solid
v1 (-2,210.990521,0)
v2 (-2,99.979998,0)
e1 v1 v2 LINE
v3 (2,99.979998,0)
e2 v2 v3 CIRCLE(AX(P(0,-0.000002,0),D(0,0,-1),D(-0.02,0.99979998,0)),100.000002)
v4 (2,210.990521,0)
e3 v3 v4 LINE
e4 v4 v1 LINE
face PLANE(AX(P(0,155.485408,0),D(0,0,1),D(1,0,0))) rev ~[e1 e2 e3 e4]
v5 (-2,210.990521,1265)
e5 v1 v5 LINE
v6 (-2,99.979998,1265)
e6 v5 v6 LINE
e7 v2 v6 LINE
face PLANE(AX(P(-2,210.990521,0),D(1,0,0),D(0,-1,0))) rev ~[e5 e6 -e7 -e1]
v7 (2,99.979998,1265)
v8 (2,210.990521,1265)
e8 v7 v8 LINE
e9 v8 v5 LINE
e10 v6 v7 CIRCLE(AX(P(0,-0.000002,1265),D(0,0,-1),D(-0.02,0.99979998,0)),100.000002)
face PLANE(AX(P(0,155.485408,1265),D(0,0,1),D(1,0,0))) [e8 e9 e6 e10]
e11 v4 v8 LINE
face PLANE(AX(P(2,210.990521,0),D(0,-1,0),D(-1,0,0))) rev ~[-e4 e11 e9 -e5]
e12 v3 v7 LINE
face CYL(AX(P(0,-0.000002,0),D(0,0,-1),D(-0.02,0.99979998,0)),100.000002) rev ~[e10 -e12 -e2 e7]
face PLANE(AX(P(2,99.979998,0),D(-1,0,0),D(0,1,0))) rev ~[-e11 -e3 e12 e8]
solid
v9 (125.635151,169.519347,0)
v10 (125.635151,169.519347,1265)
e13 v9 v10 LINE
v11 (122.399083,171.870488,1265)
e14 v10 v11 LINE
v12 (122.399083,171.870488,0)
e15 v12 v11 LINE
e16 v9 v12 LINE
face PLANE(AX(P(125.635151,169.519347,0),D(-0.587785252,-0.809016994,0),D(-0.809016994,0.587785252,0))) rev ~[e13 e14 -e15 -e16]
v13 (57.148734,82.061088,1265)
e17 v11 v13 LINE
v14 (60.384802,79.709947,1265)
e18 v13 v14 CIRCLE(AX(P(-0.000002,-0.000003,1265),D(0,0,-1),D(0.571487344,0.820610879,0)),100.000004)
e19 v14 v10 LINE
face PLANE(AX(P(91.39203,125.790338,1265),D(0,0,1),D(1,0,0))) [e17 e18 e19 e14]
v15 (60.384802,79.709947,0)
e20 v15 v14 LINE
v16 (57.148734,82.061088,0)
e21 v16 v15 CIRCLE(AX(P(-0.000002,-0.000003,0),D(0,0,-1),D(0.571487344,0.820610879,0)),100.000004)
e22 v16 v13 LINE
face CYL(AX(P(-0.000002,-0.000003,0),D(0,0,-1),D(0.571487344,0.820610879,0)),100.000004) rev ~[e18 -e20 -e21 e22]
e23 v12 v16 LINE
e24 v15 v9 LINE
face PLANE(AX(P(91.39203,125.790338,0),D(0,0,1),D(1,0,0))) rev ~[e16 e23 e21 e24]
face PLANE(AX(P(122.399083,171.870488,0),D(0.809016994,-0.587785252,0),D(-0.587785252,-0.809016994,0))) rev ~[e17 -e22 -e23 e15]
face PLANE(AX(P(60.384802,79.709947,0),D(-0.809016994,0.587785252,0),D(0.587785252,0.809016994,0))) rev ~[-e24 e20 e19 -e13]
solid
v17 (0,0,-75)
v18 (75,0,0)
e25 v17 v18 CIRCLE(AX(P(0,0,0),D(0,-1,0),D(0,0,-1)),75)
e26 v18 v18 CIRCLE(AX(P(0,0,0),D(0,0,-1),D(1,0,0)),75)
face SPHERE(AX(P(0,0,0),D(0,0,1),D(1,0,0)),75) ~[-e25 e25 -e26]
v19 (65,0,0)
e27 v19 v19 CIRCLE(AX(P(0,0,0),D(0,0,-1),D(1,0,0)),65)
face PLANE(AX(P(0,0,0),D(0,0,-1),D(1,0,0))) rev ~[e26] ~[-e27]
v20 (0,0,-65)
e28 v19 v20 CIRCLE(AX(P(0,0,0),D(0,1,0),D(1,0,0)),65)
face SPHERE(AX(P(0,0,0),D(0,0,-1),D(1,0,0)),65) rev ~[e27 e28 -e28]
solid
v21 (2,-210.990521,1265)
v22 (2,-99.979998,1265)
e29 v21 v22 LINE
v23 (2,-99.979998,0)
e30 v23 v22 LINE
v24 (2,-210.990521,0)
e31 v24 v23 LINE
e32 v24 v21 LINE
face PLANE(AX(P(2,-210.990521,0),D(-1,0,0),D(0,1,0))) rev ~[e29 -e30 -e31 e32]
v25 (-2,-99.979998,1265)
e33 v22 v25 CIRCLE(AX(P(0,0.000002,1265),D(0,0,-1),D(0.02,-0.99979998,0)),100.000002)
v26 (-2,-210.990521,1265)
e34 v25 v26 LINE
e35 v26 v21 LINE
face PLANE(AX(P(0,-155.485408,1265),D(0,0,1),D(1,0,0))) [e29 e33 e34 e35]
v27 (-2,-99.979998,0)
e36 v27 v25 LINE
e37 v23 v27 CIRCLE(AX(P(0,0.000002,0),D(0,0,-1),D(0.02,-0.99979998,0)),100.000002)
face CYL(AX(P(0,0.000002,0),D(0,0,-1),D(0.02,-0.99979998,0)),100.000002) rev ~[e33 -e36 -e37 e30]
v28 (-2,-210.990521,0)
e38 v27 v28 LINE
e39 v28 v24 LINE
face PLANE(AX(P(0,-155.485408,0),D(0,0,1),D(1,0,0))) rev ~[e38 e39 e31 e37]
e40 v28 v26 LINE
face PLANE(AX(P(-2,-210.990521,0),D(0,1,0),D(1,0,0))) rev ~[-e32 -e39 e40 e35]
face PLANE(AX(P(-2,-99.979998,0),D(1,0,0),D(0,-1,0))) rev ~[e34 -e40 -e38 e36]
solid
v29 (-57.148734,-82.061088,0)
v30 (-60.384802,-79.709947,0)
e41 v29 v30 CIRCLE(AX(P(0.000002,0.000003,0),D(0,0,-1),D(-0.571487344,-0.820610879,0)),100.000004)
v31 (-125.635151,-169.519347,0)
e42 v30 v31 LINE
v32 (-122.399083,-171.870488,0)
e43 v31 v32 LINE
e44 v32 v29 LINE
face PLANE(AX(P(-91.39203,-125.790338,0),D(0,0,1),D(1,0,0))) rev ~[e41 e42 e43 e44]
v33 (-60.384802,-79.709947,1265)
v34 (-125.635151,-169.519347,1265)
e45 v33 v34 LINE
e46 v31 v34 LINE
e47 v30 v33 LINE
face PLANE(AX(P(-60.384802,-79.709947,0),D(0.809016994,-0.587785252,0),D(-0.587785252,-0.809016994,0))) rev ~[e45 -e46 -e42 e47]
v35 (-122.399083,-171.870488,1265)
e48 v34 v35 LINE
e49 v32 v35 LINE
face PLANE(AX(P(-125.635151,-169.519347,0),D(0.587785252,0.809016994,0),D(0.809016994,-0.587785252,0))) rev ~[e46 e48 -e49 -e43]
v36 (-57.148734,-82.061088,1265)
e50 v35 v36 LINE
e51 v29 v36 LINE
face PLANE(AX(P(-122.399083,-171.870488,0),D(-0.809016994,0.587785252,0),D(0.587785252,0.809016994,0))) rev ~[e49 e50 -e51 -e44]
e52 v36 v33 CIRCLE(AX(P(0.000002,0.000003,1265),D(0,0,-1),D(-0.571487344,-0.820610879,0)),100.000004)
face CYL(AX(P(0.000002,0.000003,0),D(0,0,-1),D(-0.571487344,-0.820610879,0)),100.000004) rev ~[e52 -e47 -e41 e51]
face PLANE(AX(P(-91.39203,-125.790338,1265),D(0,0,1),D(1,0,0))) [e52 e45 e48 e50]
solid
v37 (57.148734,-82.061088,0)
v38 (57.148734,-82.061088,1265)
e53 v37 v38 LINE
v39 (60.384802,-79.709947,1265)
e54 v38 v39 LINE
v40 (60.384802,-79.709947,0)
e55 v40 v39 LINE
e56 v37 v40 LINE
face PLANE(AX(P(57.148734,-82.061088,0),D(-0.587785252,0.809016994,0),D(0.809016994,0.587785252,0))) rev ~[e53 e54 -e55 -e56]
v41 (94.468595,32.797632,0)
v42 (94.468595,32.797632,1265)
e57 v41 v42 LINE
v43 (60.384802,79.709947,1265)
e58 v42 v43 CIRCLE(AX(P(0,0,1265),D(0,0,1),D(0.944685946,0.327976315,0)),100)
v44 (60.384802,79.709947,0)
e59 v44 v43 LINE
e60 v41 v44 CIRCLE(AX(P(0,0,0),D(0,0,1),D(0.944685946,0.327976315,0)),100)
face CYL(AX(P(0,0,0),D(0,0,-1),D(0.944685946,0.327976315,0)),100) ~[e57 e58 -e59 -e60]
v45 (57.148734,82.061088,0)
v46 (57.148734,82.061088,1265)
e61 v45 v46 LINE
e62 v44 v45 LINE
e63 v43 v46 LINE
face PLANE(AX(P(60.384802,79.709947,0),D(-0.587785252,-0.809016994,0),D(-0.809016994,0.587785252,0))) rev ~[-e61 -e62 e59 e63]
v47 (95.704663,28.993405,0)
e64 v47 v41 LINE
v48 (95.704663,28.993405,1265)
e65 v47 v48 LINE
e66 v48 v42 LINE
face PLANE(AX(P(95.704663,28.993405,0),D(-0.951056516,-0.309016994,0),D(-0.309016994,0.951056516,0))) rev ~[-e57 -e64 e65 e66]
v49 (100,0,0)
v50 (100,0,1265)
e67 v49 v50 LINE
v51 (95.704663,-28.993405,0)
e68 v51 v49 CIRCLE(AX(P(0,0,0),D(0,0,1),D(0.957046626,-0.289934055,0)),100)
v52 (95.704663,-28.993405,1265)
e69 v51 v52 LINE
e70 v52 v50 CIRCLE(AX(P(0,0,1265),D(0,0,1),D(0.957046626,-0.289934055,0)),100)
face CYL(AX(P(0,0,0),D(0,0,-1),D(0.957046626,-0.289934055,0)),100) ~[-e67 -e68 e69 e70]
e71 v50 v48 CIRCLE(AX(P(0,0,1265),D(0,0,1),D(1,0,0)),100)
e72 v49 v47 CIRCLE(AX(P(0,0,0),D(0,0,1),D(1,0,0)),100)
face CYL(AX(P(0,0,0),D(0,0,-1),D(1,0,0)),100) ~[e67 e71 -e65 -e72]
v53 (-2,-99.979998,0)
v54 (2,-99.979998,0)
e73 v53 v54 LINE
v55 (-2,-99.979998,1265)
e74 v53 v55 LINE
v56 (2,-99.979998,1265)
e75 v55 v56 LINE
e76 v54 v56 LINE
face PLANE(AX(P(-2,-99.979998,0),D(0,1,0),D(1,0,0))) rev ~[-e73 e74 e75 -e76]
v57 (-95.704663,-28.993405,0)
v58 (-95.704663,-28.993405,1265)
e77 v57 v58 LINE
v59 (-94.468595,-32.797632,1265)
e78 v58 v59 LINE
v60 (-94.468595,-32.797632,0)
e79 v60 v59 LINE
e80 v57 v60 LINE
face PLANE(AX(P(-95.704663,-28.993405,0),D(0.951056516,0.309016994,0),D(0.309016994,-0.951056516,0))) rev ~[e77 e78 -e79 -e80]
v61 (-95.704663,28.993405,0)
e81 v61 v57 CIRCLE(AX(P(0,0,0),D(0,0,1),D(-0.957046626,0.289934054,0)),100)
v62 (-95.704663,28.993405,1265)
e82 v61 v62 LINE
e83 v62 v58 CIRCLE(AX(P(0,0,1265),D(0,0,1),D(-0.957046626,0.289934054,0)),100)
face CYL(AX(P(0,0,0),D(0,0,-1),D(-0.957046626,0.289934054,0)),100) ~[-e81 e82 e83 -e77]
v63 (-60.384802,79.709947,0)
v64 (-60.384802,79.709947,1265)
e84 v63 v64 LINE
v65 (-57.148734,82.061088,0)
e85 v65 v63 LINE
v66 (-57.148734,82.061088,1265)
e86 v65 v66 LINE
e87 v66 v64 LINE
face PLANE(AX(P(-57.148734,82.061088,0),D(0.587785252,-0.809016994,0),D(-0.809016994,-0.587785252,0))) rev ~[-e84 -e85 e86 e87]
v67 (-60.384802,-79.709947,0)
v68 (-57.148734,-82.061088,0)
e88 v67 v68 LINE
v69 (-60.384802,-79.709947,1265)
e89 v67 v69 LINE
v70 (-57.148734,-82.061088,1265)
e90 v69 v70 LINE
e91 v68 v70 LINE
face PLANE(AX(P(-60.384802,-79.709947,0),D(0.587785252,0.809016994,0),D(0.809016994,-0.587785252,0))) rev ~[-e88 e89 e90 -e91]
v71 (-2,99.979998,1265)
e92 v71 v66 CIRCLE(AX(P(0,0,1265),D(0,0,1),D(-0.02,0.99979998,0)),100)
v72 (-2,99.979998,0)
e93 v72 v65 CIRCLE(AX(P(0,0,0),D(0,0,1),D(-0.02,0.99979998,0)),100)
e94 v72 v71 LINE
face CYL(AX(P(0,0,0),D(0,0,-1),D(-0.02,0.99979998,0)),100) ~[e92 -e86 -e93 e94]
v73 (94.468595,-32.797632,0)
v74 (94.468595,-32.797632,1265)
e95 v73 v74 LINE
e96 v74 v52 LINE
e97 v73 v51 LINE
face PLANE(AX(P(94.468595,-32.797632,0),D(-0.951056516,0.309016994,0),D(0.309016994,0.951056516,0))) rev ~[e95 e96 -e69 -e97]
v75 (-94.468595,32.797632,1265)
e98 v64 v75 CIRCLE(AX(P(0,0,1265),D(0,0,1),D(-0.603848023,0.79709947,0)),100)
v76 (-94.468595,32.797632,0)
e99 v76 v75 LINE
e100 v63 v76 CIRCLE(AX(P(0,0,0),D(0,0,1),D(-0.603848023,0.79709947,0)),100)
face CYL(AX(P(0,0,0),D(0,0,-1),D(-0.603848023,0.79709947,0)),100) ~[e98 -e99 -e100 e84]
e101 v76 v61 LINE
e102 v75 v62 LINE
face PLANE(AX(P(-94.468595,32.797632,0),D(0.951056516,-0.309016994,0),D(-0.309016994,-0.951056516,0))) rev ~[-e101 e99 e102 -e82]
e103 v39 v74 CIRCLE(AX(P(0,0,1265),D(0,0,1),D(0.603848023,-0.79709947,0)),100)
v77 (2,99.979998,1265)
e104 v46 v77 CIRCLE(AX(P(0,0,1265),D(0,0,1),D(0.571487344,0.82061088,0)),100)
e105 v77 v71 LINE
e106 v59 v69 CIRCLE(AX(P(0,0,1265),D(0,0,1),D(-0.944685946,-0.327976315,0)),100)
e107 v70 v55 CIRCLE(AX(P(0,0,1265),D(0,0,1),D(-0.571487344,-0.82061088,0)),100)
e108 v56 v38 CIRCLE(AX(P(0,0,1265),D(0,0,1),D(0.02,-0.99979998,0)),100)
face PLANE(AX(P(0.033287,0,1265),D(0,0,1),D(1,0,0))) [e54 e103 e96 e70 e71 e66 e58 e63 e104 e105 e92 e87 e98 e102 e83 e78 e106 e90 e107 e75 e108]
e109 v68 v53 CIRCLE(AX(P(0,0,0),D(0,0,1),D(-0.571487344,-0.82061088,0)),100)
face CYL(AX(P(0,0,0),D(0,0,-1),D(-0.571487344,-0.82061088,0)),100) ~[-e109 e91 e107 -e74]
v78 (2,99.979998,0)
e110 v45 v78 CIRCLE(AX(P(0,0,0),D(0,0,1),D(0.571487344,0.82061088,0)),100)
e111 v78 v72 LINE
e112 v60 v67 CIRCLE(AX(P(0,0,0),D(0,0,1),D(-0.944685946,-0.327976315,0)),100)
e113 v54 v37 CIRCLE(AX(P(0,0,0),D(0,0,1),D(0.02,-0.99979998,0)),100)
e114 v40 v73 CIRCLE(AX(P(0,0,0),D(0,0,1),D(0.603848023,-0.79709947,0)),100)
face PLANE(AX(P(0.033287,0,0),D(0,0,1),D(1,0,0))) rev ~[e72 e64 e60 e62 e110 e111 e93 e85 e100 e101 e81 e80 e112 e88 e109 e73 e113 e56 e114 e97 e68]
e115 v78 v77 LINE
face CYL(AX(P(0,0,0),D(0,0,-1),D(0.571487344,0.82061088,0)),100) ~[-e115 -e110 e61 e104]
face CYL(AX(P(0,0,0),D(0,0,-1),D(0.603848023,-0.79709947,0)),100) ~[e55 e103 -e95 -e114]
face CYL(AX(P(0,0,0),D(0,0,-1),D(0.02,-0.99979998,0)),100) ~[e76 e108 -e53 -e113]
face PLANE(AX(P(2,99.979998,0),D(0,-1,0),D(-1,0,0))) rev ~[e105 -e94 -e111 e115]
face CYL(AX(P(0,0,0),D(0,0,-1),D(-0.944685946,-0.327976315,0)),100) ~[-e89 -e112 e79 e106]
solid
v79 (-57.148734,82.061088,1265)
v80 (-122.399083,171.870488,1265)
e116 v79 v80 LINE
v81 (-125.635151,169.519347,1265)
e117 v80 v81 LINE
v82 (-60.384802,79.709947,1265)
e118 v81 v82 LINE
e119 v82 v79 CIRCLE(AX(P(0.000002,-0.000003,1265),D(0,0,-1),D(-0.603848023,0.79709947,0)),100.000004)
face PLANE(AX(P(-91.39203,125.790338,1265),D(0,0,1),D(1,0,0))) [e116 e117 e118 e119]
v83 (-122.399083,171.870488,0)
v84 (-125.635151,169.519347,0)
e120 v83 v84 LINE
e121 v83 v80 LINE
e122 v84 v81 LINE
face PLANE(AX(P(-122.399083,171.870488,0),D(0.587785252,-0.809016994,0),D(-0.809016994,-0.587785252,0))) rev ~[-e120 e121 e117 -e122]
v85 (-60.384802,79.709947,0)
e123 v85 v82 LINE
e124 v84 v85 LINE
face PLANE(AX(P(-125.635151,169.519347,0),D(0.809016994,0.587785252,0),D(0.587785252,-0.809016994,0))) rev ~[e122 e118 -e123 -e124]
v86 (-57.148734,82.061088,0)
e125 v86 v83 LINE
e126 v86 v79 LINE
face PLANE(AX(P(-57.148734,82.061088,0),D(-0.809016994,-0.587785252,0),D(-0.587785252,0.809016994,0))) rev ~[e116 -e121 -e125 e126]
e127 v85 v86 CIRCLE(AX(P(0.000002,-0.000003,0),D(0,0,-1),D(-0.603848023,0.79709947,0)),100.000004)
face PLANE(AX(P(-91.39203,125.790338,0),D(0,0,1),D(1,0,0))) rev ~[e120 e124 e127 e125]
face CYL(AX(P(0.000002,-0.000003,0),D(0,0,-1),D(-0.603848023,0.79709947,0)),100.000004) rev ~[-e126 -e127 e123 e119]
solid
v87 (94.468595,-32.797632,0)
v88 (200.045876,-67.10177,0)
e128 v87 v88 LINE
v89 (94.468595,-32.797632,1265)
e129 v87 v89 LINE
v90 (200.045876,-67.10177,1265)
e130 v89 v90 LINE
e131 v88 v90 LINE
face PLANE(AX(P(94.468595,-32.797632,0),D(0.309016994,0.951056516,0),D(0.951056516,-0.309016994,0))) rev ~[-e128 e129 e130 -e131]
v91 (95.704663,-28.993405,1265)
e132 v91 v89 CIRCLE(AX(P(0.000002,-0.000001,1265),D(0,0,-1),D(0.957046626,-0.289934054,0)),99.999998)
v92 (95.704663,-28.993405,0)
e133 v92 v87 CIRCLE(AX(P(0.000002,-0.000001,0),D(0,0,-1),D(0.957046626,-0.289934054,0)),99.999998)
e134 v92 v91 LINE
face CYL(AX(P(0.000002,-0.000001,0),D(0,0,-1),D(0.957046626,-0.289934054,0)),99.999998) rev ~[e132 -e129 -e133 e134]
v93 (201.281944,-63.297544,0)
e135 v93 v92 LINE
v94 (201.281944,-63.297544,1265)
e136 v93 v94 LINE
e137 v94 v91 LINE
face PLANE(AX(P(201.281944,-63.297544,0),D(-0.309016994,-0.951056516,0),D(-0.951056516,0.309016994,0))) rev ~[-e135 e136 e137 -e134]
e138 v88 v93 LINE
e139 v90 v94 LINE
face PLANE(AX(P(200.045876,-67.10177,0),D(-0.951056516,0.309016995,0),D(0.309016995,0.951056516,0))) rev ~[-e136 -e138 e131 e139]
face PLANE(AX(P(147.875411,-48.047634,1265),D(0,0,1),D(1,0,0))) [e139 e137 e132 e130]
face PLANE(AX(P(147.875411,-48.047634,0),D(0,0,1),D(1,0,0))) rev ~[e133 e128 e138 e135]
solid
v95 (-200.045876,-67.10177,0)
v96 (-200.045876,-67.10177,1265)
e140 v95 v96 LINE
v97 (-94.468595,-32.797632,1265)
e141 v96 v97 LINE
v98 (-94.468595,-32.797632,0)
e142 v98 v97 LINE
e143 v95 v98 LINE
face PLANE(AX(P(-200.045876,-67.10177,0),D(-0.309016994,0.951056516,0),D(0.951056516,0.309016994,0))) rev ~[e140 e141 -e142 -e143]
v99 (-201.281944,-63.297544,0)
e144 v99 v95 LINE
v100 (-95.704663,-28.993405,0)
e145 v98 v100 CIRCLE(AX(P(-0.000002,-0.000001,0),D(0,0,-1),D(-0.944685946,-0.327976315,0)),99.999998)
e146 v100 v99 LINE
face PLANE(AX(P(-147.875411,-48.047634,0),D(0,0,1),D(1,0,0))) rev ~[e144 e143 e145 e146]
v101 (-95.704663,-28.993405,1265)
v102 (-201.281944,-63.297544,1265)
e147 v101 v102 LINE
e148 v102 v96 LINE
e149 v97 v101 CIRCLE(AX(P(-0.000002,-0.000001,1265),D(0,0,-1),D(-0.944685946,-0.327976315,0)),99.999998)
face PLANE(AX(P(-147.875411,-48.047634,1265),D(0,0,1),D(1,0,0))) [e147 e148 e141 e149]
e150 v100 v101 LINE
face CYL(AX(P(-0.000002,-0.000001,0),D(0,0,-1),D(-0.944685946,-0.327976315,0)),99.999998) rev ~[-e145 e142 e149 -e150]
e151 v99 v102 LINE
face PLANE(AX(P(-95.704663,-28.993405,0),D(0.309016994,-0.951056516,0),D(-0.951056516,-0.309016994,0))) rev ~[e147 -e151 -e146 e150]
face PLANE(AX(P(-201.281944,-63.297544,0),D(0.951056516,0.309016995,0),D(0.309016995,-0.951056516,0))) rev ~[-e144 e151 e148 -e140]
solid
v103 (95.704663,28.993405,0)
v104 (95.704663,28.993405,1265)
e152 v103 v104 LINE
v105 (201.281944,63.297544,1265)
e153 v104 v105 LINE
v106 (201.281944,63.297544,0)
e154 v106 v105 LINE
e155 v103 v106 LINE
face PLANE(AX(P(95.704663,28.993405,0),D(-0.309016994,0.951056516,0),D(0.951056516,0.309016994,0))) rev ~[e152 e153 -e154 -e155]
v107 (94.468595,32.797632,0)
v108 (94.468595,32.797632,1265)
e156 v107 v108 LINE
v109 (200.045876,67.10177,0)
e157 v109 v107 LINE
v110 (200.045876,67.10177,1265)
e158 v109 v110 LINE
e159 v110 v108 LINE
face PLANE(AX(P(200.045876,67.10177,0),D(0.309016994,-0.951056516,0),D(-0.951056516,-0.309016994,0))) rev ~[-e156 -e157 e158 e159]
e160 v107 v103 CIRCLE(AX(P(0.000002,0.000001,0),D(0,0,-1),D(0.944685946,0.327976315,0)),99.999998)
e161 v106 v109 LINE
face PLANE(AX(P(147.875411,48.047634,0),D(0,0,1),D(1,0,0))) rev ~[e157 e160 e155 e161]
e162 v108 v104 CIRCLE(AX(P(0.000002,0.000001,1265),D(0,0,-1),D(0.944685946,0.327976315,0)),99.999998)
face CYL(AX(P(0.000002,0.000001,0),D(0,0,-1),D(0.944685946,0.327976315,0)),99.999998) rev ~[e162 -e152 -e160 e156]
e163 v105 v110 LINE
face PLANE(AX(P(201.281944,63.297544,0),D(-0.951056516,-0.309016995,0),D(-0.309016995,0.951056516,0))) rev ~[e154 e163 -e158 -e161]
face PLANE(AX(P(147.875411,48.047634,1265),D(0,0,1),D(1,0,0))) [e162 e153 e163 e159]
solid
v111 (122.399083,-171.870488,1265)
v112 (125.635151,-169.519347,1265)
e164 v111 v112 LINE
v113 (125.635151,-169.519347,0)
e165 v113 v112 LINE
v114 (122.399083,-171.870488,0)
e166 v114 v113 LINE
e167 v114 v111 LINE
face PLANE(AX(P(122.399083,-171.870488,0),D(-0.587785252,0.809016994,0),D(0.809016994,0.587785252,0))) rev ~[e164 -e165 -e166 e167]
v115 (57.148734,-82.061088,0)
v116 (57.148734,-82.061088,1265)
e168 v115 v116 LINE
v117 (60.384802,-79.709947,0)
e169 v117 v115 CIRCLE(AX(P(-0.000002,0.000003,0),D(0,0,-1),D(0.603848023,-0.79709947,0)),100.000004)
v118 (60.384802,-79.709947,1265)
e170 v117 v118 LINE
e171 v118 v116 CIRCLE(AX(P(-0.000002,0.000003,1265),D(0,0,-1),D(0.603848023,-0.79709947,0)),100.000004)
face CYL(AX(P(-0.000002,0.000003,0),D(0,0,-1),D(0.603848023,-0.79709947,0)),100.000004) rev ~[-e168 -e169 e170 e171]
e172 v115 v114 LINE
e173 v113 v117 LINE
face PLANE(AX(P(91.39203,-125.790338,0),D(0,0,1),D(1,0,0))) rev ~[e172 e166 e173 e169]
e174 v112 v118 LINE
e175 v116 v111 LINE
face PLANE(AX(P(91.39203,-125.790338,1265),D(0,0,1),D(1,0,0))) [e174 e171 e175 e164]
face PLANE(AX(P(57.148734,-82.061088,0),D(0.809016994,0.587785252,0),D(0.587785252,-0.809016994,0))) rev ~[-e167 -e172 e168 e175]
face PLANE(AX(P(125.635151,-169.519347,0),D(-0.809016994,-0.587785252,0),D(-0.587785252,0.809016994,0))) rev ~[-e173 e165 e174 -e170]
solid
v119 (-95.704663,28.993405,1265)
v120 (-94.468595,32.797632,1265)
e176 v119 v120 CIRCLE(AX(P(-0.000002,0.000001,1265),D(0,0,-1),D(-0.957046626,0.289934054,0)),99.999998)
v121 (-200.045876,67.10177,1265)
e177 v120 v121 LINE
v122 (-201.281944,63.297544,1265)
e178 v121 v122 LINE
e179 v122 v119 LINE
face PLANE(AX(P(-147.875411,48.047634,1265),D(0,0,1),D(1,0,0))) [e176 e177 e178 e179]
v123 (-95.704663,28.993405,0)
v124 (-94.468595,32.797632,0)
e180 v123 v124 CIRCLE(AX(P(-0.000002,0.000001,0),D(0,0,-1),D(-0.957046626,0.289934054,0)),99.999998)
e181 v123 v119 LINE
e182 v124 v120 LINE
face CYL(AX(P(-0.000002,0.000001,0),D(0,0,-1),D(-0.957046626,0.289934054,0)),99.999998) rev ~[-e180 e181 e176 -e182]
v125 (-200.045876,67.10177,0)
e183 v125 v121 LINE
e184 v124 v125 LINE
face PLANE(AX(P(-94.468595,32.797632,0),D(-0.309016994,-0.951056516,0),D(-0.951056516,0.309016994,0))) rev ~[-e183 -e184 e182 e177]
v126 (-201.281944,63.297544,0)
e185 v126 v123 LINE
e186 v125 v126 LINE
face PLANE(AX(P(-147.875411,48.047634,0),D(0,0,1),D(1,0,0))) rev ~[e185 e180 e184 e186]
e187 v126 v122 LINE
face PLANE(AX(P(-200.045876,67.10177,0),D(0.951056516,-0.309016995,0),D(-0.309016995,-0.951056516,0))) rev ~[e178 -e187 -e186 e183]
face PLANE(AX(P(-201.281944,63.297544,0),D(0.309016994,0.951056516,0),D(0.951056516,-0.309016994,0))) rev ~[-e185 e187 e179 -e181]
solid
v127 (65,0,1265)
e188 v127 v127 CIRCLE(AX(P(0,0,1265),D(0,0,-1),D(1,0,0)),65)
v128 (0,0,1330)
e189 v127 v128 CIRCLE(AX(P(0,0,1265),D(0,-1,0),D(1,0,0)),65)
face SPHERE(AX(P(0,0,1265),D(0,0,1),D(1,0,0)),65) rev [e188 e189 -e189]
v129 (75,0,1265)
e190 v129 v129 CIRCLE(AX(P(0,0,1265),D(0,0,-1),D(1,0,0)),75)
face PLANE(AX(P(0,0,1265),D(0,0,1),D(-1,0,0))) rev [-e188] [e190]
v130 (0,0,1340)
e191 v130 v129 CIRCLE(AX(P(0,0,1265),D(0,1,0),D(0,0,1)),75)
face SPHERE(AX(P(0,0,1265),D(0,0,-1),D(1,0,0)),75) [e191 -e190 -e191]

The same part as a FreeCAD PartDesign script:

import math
import FreeCAD as App
import Part
import Sketcher

V = App.Vector
Q = App.Units.Quantity

doc = App.newDocument("Part")
body = doc.addObject("PartDesign::Body", "Body")

sketch1 = body.newObject("Sketcher::SketchObject", "Sketch")
sketch1.AttachmentSupport = (doc.getObject("XY_Plane"), [""])
sketch1.MapMode = "FlatFace"
sketch1.addGeometry(Part.ArcOfCircle(Part.Circle(V(0, 0, 0), V(0, 0, 1), 100), math.radians(88.85), math.radians(91.15)), False)
sketch1.addGeometry(Part.LineSegment(V(2, 100, 0), V(2, 211, 0)), False)
sketch1.addGeometry(Part.LineSegment(V(2, 211, 0), V(-2, 211, 0)), False)
sketch1.addGeometry(Part.LineSegment(V(-2, 211, 0), V(-2, 100, 0)), False)
sketch1.addConstraint(Sketcher.Constraint("Coincident", 0, 1, 1, 1))
sketch1.addConstraint(Sketcher.Constraint("Coincident", 1, 2, 2, 1))
sketch1.addConstraint(Sketcher.Constraint("Coincident", 2, 2, 3, 1))
sketch1.addConstraint(Sketcher.Constraint("Coincident", 3, 2, 0, 2))
sketch1.addConstraint(Sketcher.Constraint("Vertical", 1))
sketch1.addConstraint(Sketcher.Constraint("Horizontal", 2))
sketch1.addConstraint(Sketcher.Constraint("Vertical", 3))
sketch1.addConstraint(Sketcher.Constraint("Coincident", 0, 3, -1, 1))
sketch1.addConstraint(Sketcher.Constraint("Horizontal", 0, 1, 3, 2))
sketch1.addConstraint(Sketcher.Constraint("Radius", 0, Q("100.000002 mm")))
sketch1.addConstraint(Sketcher.Constraint("DistanceX", 2, 2, 2, 1, Q("4 mm")))
sketch1.addConstraint(Sketcher.Constraint("DistanceY", 1, 1, 1, 2, Q("111.010523 mm")))
pad1 = body.newObject("PartDesign::Pad", "Pad")
pad1.Profile = sketch1
pad1.Length = 1265
body2 = doc.addObject("PartDesign::Body", "Body001")

sketch2 = body2.newObject("Sketcher::SketchObject", "Sketch001")
sketch2.AttachmentSupport = (doc.getObject("XY_Plane001"), [""])
sketch2.MapMode = "FlatFace"
sketch2.addGeometry(Part.ArcOfCircle(Part.Circle(V(0, 0, 0), V(0, 0, 1), 100), math.radians(124.85), math.radians(127.15)), False)
sketch2.addGeometry(Part.LineSegment(V(-57.1, 82.1, 0), V(-122.4, 171.9, 0)), False)
sketch2.addGeometry(Part.LineSegment(V(-122.4, 171.9, 0), V(-125.6, 169.5, 0)), False)
sketch2.addGeometry(Part.LineSegment(V(-125.6, 169.5, 0), V(-60.4, 79.7, 0)), False)
sketch2.addConstraint(Sketcher.Constraint("Coincident", 0, 1, 1, 1))
sketch2.addConstraint(Sketcher.Constraint("Coincident", 1, 2, 2, 1))
sketch2.addConstraint(Sketcher.Constraint("Coincident", 2, 2, 3, 1))
sketch2.addConstraint(Sketcher.Constraint("Coincident", 3, 2, 0, 2))
sketch2.addConstraint(Sketcher.Constraint("Coincident", 0, 3, -1, 1))
sketch2.addConstraint(Sketcher.Constraint("Perpendicular", 1, 2))
sketch2.addConstraint(Sketcher.Constraint("Perpendicular", 2, 3))
sketch2.addConstraint(Sketcher.Constraint("Equal", 1, 3))
sketch2.addConstraint(Sketcher.Constraint("Angle", 1, Q("126 deg")))
sketch2.addConstraint(Sketcher.Constraint("Distance", 2, Q("4 mm")))
sketch2.addConstraint(Sketcher.Constraint("Radius", 0, Q("100.000004 mm")))
sketch2.addConstraint(Sketcher.Constraint("DistanceY", 0, 1, 1, 2, Q("89.8094 mm")))
pad2 = body2.newObject("PartDesign::Pad", "Pad001")
pad2.Profile = sketch2
pad2.Length = 1265
body3 = doc.addObject("PartDesign::Body", "Body002")

sketch3 = body3.newObject("Sketcher::SketchObject", "Sketch002")
sketch3.AttachmentSupport = (doc.getObject("XY_Plane002"), [""])
sketch3.MapMode = "FlatFace"
sketch3.addGeometry(Part.ArcOfCircle(Part.Circle(V(0, 0, 0), V(0, 0, 1), 100), math.radians(160.85), math.radians(163.15)), False)
sketch3.addGeometry(Part.LineSegment(V(-94.5, 32.8, 0), V(-200, 67.1, 0)), False)
sketch3.addGeometry(Part.LineSegment(V(-200, 67.1, 0), V(-201.3, 63.3, 0)), False)
sketch3.addGeometry(Part.LineSegment(V(-201.3, 63.3, 0), V(-95.7, 29, 0)), False)
sketch3.addConstraint(Sketcher.Constraint("Coincident", 0, 1, 1, 1))
sketch3.addConstraint(Sketcher.Constraint("Coincident", 1, 2, 2, 1))
sketch3.addConstraint(Sketcher.Constraint("Coincident", 2, 2, 3, 1))
sketch3.addConstraint(Sketcher.Constraint("Coincident", 3, 2, 0, 2))
sketch3.addConstraint(Sketcher.Constraint("Coincident", 0, 3, -1, 1))
sketch3.addConstraint(Sketcher.Constraint("Perpendicular", 1, 2))
sketch3.addConstraint(Sketcher.Constraint("Perpendicular", 2, 3))
sketch3.addConstraint(Sketcher.Constraint("Equal", 1, 3))
sketch3.addConstraint(Sketcher.Constraint("Angle", 1, Q("162 deg")))
sketch3.addConstraint(Sketcher.Constraint("Distance", 2, Q("4 mm")))
sketch3.addConstraint(Sketcher.Constraint("Radius", 0, Q("99.999998 mm")))
sketch3.addConstraint(Sketcher.Constraint("DistanceY", -1, 1, 1, 2, Q("67.10177 mm")))
pad3 = body3.newObject("PartDesign::Pad", "Pad002")
pad3.Profile = sketch3
pad3.Length = 1265
body4 = doc.addObject("PartDesign::Body", "Body003")

sketch4 = body4.newObject("Sketcher::SketchObject", "Sketch003")
sketch4.AttachmentSupport = (doc.getObject("XY_Plane003"), [""])
sketch4.MapMode = "FlatFace"
sketch4.addGeometry(Part.LineSegment(V(122.4, 171.9, 0), V(57.1, 82.1, 0)), False)
sketch4.addGeometry(Part.ArcOfCircle(Part.Circle(V(0, 0, 0), V(0, 0, 1), 100), math.radians(52.85), math.radians(55.15)), False)
sketch4.addGeometry(Part.LineSegment(V(60.4, 79.7, 0), V(125.6, 169.5, 0)), False)
sketch4.addGeometry(Part.LineSegment(V(125.6, 169.5, 0), V(122.4, 171.9, 0)), False)
sketch4.addConstraint(Sketcher.Constraint("Coincident", 0, 2, 1, 2))
sketch4.addConstraint(Sketcher.Constraint("Coincident", 1, 1, 2, 1))
sketch4.addConstraint(Sketcher.Constraint("Coincident", 2, 2, 3, 1))
sketch4.addConstraint(Sketcher.Constraint("Coincident", 3, 2, 0, 1))
sketch4.addConstraint(Sketcher.Constraint("Coincident", 1, 3, -1, 1))
sketch4.addConstraint(Sketcher.Constraint("Parallel", 0, 2))
sketch4.addConstraint(Sketcher.Constraint("Perpendicular", 2, 3))
sketch4.addConstraint(Sketcher.Constraint("Equal", 0, 2))
sketch4.addConstraint(Sketcher.Constraint("Angle", 0, Q("-126 deg")))
sketch4.addConstraint(Sketcher.Constraint("Distance", 3, Q("4 mm")))
sketch4.addConstraint(Sketcher.Constraint("Radius", 1, Q("100.000004 mm")))
sketch4.addConstraint(Sketcher.Constraint("DistanceY", 1, 1, 2, 2, Q("89.8094 mm")))
pad4 = body4.newObject("PartDesign::Pad", "Pad003")
pad4.Profile = sketch4
pad4.Length = 1265
body5 = doc.addObject("PartDesign::Body", "Body004")

sketch5 = body5.newObject("Sketcher::SketchObject", "Sketch004")
sketch5.AttachmentSupport = (doc.getObject("XY_Plane004"), [""])
sketch5.MapMode = "FlatFace"
sketch5.addGeometry(Part.LineSegment(V(200, 67.1, 0), V(94.5, 32.8, 0)), False)
sketch5.addGeometry(Part.ArcOfCircle(Part.Circle(V(0, 0, 0), V(0, 0, 1), 100), math.radians(16.85), math.radians(19.15)), False)
sketch5.addGeometry(Part.LineSegment(V(95.7, 29, 0), V(201.3, 63.3, 0)), False)
sketch5.addGeometry(Part.LineSegment(V(201.3, 63.3, 0), V(200, 67.1, 0)), False)
sketch5.addConstraint(Sketcher.Constraint("Coincident", 0, 2, 1, 2))
sketch5.addConstraint(Sketcher.Constraint("Coincident", 1, 1, 2, 1))
sketch5.addConstraint(Sketcher.Constraint("Coincident", 2, 2, 3, 1))
sketch5.addConstraint(Sketcher.Constraint("Coincident", 3, 2, 0, 1))
sketch5.addConstraint(Sketcher.Constraint("Coincident", 1, 3, -1, 1))
sketch5.addConstraint(Sketcher.Constraint("Parallel", 0, 2))
sketch5.addConstraint(Sketcher.Constraint("Perpendicular", 2, 3))
sketch5.addConstraint(Sketcher.Constraint("Equal", 0, 2))
sketch5.addConstraint(Sketcher.Constraint("Angle", 0, Q("-162 deg")))
sketch5.addConstraint(Sketcher.Constraint("Distance", 3, Q("4 mm")))
sketch5.addConstraint(Sketcher.Constraint("Radius", 1, Q("99.999998 mm")))
sketch5.addConstraint(Sketcher.Constraint("DistanceY", -1, 1, 3, 2, Q("67.10177 mm")))
pad5 = body5.newObject("PartDesign::Pad", "Pad004")
pad5.Profile = sketch5
pad5.Length = 1265
body6 = doc.addObject("PartDesign::Body", "Body005")

sketch6 = body6.newObject("Sketcher::SketchObject", "Sketch005")
sketch6.AttachmentSupport = (doc.getObject("XY_Plane005"), [""])
sketch6.MapMode = "FlatFace"
sketch6.addGeometry(Part.LineSegment(V(201.3, -63.3, 0), V(95.7, -29, 0)), False)
sketch6.addGeometry(Part.ArcOfCircle(Part.Circle(V(0, 0, 0), V(0, 0, 1), 100), math.radians(-19.15), math.radians(-16.85)), False)
sketch6.addGeometry(Part.LineSegment(V(94.5, -32.8, 0), V(200, -67.1, 0)), False)
sketch6.addGeometry(Part.LineSegment(V(200, -67.1, 0), V(201.3, -63.3, 0)), False)
sketch6.addConstraint(Sketcher.Constraint("Coincident", 0, 2, 1, 2))
sketch6.addConstraint(Sketcher.Constraint("Coincident", 1, 1, 2, 1))
sketch6.addConstraint(Sketcher.Constraint("Coincident", 2, 2, 3, 1))
sketch6.addConstraint(Sketcher.Constraint("Coincident", 3, 2, 0, 1))
sketch6.addConstraint(Sketcher.Constraint("Coincident", 1, 3, -1, 1))
sketch6.addConstraint(Sketcher.Constraint("Parallel", 0, 2))
sketch6.addConstraint(Sketcher.Constraint("Perpendicular", 2, 3))
sketch6.addConstraint(Sketcher.Constraint("Equal", 0, 2))
sketch6.addConstraint(Sketcher.Constraint("Angle", 0, Q("162 deg")))
sketch6.addConstraint(Sketcher.Constraint("Distance", 3, Q("4 mm")))
sketch6.addConstraint(Sketcher.Constraint("Radius", 1, Q("99.999998 mm")))
sketch6.addConstraint(Sketcher.Constraint("DistanceY", 2, 2, -1, 1, Q("67.10177 mm")))
pad6 = body6.newObject("PartDesign::Pad", "Pad005")
pad6.Profile = sketch6
pad6.Length = 1265
body7 = doc.addObject("PartDesign::Body", "Body006")

sketch7 = body7.newObject("Sketcher::SketchObject", "Sketch006")
sketch7.AttachmentSupport = (doc.getObject("XY_Plane006"), [""])
sketch7.MapMode = "FlatFace"
sketch7.addGeometry(Part.LineSegment(V(125.6, -169.5, 0), V(60.4, -79.7, 0)), False)
sketch7.addGeometry(Part.ArcOfCircle(Part.Circle(V(0, 0, 0), V(0, 0, 1), 100), math.radians(-55.15), math.radians(-52.85)), False)
sketch7.addGeometry(Part.LineSegment(V(57.1, -82.1, 0), V(122.4, -171.9, 0)), False)
sketch7.addGeometry(Part.LineSegment(V(122.4, -171.9, 0), V(125.6, -169.5, 0)), False)
sketch7.addConstraint(Sketcher.Constraint("Coincident", 0, 2, 1, 2))
sketch7.addConstraint(Sketcher.Constraint("Coincident", 1, 1, 2, 1))
sketch7.addConstraint(Sketcher.Constraint("Coincident", 2, 2, 3, 1))
sketch7.addConstraint(Sketcher.Constraint("Coincident", 3, 2, 0, 1))
sketch7.addConstraint(Sketcher.Constraint("Coincident", 1, 3, -1, 1))
sketch7.addConstraint(Sketcher.Constraint("Parallel", 0, 2))
sketch7.addConstraint(Sketcher.Constraint("Perpendicular", 2, 3))
sketch7.addConstraint(Sketcher.Constraint("Equal", 0, 2))
sketch7.addConstraint(Sketcher.Constraint("Angle", 0, Q("126 deg")))
sketch7.addConstraint(Sketcher.Constraint("Distance", 3, Q("4 mm")))
sketch7.addConstraint(Sketcher.Constraint("Radius", 1, Q("100.000004 mm")))
sketch7.addConstraint(Sketcher.Constraint("DistanceY", 2, 2, 1, 1, Q("89.8094 mm")))
pad7 = body7.newObject("PartDesign::Pad", "Pad006")
pad7.Profile = sketch7
pad7.Length = 1265
body8 = doc.addObject("PartDesign::Body", "Body007")

sketch8 = body8.newObject("Sketcher::SketchObject", "Sketch007")
sketch8.AttachmentSupport = (doc.getObject("XY_Plane007"), [""])
sketch8.MapMode = "FlatFace"
sketch8.addGeometry(Part.LineSegment(V(2, -211, 0), V(2, -100, 0)), False)
sketch8.addGeometry(Part.ArcOfCircle(Part.Circle(V(0, 0, 0), V(0, 0, 1), 100), math.radians(-91.15), math.radians(-88.85)), False)
sketch8.addGeometry(Part.LineSegment(V(-2, -100, 0), V(-2, -211, 0)), False)
sketch8.addGeometry(Part.LineSegment(V(-2, -211, 0), V(2, -211, 0)), False)
sketch8.addConstraint(Sketcher.Constraint("Coincident", 0, 2, 1, 2))
sketch8.addConstraint(Sketcher.Constraint("Coincident", 1, 1, 2, 1))
sketch8.addConstraint(Sketcher.Constraint("Coincident", 2, 2, 3, 1))
sketch8.addConstraint(Sketcher.Constraint("Coincident", 3, 2, 0, 1))
sketch8.addConstraint(Sketcher.Constraint("Vertical", 0))
sketch8.addConstraint(Sketcher.Constraint("Vertical", 2))
sketch8.addConstraint(Sketcher.Constraint("Horizontal", 3))
sketch8.addConstraint(Sketcher.Constraint("Coincident", 1, 3, -1, 1))
sketch8.addConstraint(Sketcher.Constraint("Horizontal", 0, 2, 1, 1))
sketch8.addConstraint(Sketcher.Constraint("Radius", 1, Q("100.000002 mm")))
sketch8.addConstraint(Sketcher.Constraint("DistanceX", 3, 1, 3, 2, Q("4 mm")))
sketch8.addConstraint(Sketcher.Constraint("DistanceY", 0, 1, 0, 2, Q("111.010523 mm")))
pad8 = body8.newObject("PartDesign::Pad", "Pad007")
pad8.Profile = sketch8
pad8.Length = 1265
body9 = doc.addObject("PartDesign::Body", "Body008")

sketch9 = body9.newObject("Sketcher::SketchObject", "Sketch008")
sketch9.AttachmentSupport = (doc.getObject("XY_Plane008"), [""])
sketch9.MapMode = "FlatFace"
sketch9.addGeometry(Part.ArcOfCircle(Part.Circle(V(0, 0, 0), V(0, 0, 1), 100), math.radians(-127.15), math.radians(-124.85)), False)
sketch9.addGeometry(Part.LineSegment(V(-60.4, -79.7, 0), V(-125.6, -169.5, 0)), False)
sketch9.addGeometry(Part.LineSegment(V(-125.6, -169.5, 0), V(-122.4, -171.9, 0)), False)
sketch9.addGeometry(Part.LineSegment(V(-122.4, -171.9, 0), V(-57.1, -82.1, 0)), False)
sketch9.addConstraint(Sketcher.Constraint("Coincident", 0, 1, 1, 1))
sketch9.addConstraint(Sketcher.Constraint("Coincident", 1, 2, 2, 1))
sketch9.addConstraint(Sketcher.Constraint("Coincident", 2, 2, 3, 1))
sketch9.addConstraint(Sketcher.Constraint("Coincident", 3, 2, 0, 2))
sketch9.addConstraint(Sketcher.Constraint("Coincident", 0, 3, -1, 1))
sketch9.addConstraint(Sketcher.Constraint("Perpendicular", 1, 2))
sketch9.addConstraint(Sketcher.Constraint("Perpendicular", 2, 3))
sketch9.addConstraint(Sketcher.Constraint("Equal", 1, 3))
sketch9.addConstraint(Sketcher.Constraint("Angle", 1, Q("-126 deg")))
sketch9.addConstraint(Sketcher.Constraint("Distance", 2, Q("4 mm")))
sketch9.addConstraint(Sketcher.Constraint("Radius", 0, Q("100.000004 mm")))
sketch9.addConstraint(Sketcher.Constraint("DistanceY", 1, 2, 0, 1, Q("89.8094 mm")))
pad9 = body9.newObject("PartDesign::Pad", "Pad008")
pad9.Profile = sketch9
pad9.Length = 1265
body10 = doc.addObject("PartDesign::Body", "Body009")

sketch10 = body10.newObject("Sketcher::SketchObject", "Sketch009")
sketch10.AttachmentSupport = (doc.getObject("XY_Plane009"), [""])
sketch10.MapMode = "FlatFace"
sketch10.addGeometry(Part.ArcOfCircle(Part.Circle(V(0, 0, 0), V(0, 0, 1), 100), math.radians(-163.15), math.radians(-160.85)), False)
sketch10.addGeometry(Part.LineSegment(V(-95.7, -29, 0), V(-201.3, -63.3, 0)), False)
sketch10.addGeometry(Part.LineSegment(V(-201.3, -63.3, 0), V(-200, -67.1, 0)), False)
sketch10.addGeometry(Part.LineSegment(V(-200, -67.1, 0), V(-94.5, -32.8, 0)), False)
sketch10.addConstraint(Sketcher.Constraint("Coincident", 0, 1, 1, 1))
sketch10.addConstraint(Sketcher.Constraint("Coincident", 1, 2, 2, 1))
sketch10.addConstraint(Sketcher.Constraint("Coincident", 2, 2, 3, 1))
sketch10.addConstraint(Sketcher.Constraint("Coincident", 3, 2, 0, 2))
sketch10.addConstraint(Sketcher.Constraint("Coincident", 0, 3, -1, 1))
sketch10.addConstraint(Sketcher.Constraint("Perpendicular", 1, 2))
sketch10.addConstraint(Sketcher.Constraint("Perpendicular", 2, 3))
sketch10.addConstraint(Sketcher.Constraint("Equal", 1, 3))
sketch10.addConstraint(Sketcher.Constraint("Angle", 1, Q("-162 deg")))
sketch10.addConstraint(Sketcher.Constraint("Distance", 2, Q("4 mm")))
sketch10.addConstraint(Sketcher.Constraint("Radius", 0, Q("99.999998 mm")))
sketch10.addConstraint(Sketcher.Constraint("DistanceY", 2, 2, -1, 1, Q("67.10177 mm")))
pad10 = body10.newObject("PartDesign::Pad", "Pad009")
pad10.Profile = sketch10
pad10.Length = 1265
body11 = doc.addObject("PartDesign::Body", "Body010")

sketch11 = body11.newObject("Sketcher::SketchObject", "Sketch010")
sketch11.AttachmentSupport = (doc.getObject("XY_Plane010"), [""])
sketch11.MapMode = "FlatFace"
sketch11.addGeometry(Part.LineSegment(V(60.4, 79.7, 0), V(57.1, 82.1, 0)), False)
sketch11.addGeometry(Part.ArcOfCircle(Part.Circle(V(0, 0, 0), V(0, 0, 1), 100), math.radians(55), math.radians(89)), False)
sketch11.addGeometry(Part.LineSegment(V(2, 100, 0), V(-2, 100, 0)), False)
sketch11.addGeometry(Part.ArcOfCircle(Part.Circle(V(0, 0, 0), V(0, 0, 1), 100), math.radians(91), math.radians(125)), False)
sketch11.addGeometry(Part.LineSegment(V(-57.1, 82.1, 0), V(-60.4, 79.7, 0)), False)
sketch11.addGeometry(Part.ArcOfCircle(Part.Circle(V(0, 0, 0), V(0, 0, 1), 100), math.radians(127), math.radians(161)), False)
sketch11.addGeometry(Part.LineSegment(V(-94.5, 32.8, 0), V(-95.7, 29, 0)), False)
sketch11.addGeometry(Part.ArcOfCircle(Part.Circle(V(0, 0, 0), V(0, 0, 1), 100), math.radians(163), math.radians(197)), False)
sketch11.addGeometry(Part.LineSegment(V(-95.7, -29, 0), V(-94.5, -32.8, 0)), False)
sketch11.addGeometry(Part.ArcOfCircle(Part.Circle(V(0, 0, 0), V(0, 0, 1), 100), math.radians(-161), math.radians(-127)), False)
sketch11.addGeometry(Part.LineSegment(V(-60.4, -79.7, 0), V(-57.1, -82.1, 0)), False)
sketch11.addGeometry(Part.ArcOfCircle(Part.Circle(V(0, 0, 0), V(0, 0, 1), 100), math.radians(-125), math.radians(-91)), False)
sketch11.addGeometry(Part.LineSegment(V(-2, -100, 0), V(2, -100, 0)), False)
sketch11.addGeometry(Part.ArcOfCircle(Part.Circle(V(0, 0, 0), V(0, 0, 1), 100), math.radians(-89), math.radians(-55)), False)
sketch11.addGeometry(Part.LineSegment(V(57.1, -82.1, 0), V(60.4, -79.7, 0)), False)
sketch11.addGeometry(Part.ArcOfCircle(Part.Circle(V(0, 0, 0), V(0, 0, 1), 100), math.radians(-53), math.radians(-19)), False)
sketch11.addGeometry(Part.LineSegment(V(94.5, -32.8, 0), V(95.7, -29, 0)), False)
sketch11.addGeometry(Part.ArcOfCircle(Part.Circle(V(0, 0, 0), V(0, 0, 1), 100), math.radians(-16.85), math.radians(0)), False)
sketch11.addGeometry(Part.ArcOfCircle(Part.Circle(V(0, 0, 0), V(0, 0, 1), 100), math.radians(0), math.radians(16.85)), False)
sketch11.addGeometry(Part.LineSegment(V(95.7, 29, 0), V(94.5, 32.8, 0)), False)
sketch11.addGeometry(Part.ArcOfCircle(Part.Circle(V(0, 0, 0), V(0, 0, 1), 100), math.radians(19), math.radians(53)), False)
sketch11.addConstraint(Sketcher.Constraint("Coincident", 0, 2, 1, 1))
sketch11.addConstraint(Sketcher.Constraint("Coincident", 1, 2, 2, 1))
sketch11.addConstraint(Sketcher.Constraint("Coincident", 2, 2, 3, 1))
sketch11.addConstraint(Sketcher.Constraint("Coincident", 3, 2, 4, 1))
sketch11.addConstraint(Sketcher.Constraint("Coincident", 4, 2, 5, 1))
sketch11.addConstraint(Sketcher.Constraint("Coincident", 5, 2, 6, 1))
sketch11.addConstraint(Sketcher.Constraint("Coincident", 6, 2, 7, 1))
sketch11.addConstraint(Sketcher.Constraint("Coincident", 7, 2, 8, 1))
sketch11.addConstraint(Sketcher.Constraint("Coincident", 8, 2, 9, 1))
sketch11.addConstraint(Sketcher.Constraint("Coincident", 9, 2, 10, 1))
sketch11.addConstraint(Sketcher.Constraint("Coincident", 10, 2, 11, 1))
sketch11.addConstraint(Sketcher.Constraint("Coincident", 11, 2, 12, 1))
sketch11.addConstraint(Sketcher.Constraint("Coincident", 12, 2, 13, 1))
sketch11.addConstraint(Sketcher.Constraint("Coincident", 13, 2, 14, 1))
sketch11.addConstraint(Sketcher.Constraint("Coincident", 14, 2, 15, 1))
sketch11.addConstraint(Sketcher.Constraint("Coincident", 15, 2, 16, 1))
sketch11.addConstraint(Sketcher.Constraint("Coincident", 16, 2, 17, 1))
sketch11.addConstraint(Sketcher.Constraint("Tangent", 17, 2, 18, 1))
sketch11.addConstraint(Sketcher.Constraint("Coincident", 18, 2, 19, 1))
sketch11.addConstraint(Sketcher.Constraint("Coincident", 19, 2, 20, 1))
sketch11.addConstraint(Sketcher.Constraint("Coincident", 20, 2, 0, 1))
sketch11.addConstraint(Sketcher.Constraint("Horizontal", 2))
sketch11.addConstraint(Sketcher.Constraint("Horizontal", 12))
sketch11.addConstraint(Sketcher.Constraint("Coincident", 1, 3, -1, 1))
sketch11.addConstraint(Sketcher.Constraint("Coincident", 3, 3, -1, 1))
sketch11.addConstraint(Sketcher.Constraint("Coincident", 5, 3, -1, 1))
sketch11.addConstraint(Sketcher.Constraint("Coincident", 7, 3, -1, 1))
sketch11.addConstraint(Sketcher.Constraint("Coincident", 9, 3, -1, 1))
sketch11.addConstraint(Sketcher.Constraint("Coincident", 11, 3, -1, 1))
sketch11.addConstraint(Sketcher.Constraint("Coincident", 13, 3, -1, 1))
sketch11.addConstraint(Sketcher.Constraint("Coincident", 15, 3, -1, 1))
sketch11.addConstraint(Sketcher.Constraint("Coincident", 17, 3, -1, 1))
sketch11.addConstraint(Sketcher.Constraint("Coincident", 20, 3, -1, 1))
sketch11.addConstraint(Sketcher.Constraint("Equal", 1, 3))
sketch11.addConstraint(Sketcher.Constraint("Equal", 3, 5))
sketch11.addConstraint(Sketcher.Constraint("Equal", 5, 7))
sketch11.addConstraint(Sketcher.Constraint("Equal", 7, 9))
sketch11.addConstraint(Sketcher.Constraint("Equal", 9, 11))
sketch11.addConstraint(Sketcher.Constraint("Equal", 11, 13))
sketch11.addConstraint(Sketcher.Constraint("Equal", 13, 15))
sketch11.addConstraint(Sketcher.Constraint("Equal", 15, 17))
sketch11.addConstraint(Sketcher.Constraint("Equal", 17, 18))
sketch11.addConstraint(Sketcher.Constraint("Equal", 18, 20))
sketch11.addConstraint(Sketcher.Constraint("PointOnObject", 17, 2, -1))
sketch11.addConstraint(Sketcher.Constraint("Parallel", 0, 10))
sketch11.addConstraint(Sketcher.Constraint("Parallel", 4, 14))
sketch11.addConstraint(Sketcher.Constraint("Parallel", 6, 16))
sketch11.addConstraint(Sketcher.Constraint("Parallel", 8, 19))
sketch11.addConstraint(Sketcher.Constraint("Horizontal", 0, 2, 3, 2))
sketch11.addConstraint(Sketcher.Constraint("Horizontal", 10, 2, 13, 2))
sketch11.addConstraint(Sketcher.Constraint("Horizontal", 9, 2, 14, 2))
sketch11.addConstraint(Sketcher.Constraint("Horizontal", 8, 2, 15, 2))
sketch11.addConstraint(Sketcher.Constraint("Horizontal", 7, 2, 16, 2))
sketch11.addConstraint(Sketcher.Constraint("Horizontal", 6, 2, 18, 2))
sketch11.addConstraint(Sketcher.Constraint("Vertical", 6, 2, 7, 2))
sketch11.addConstraint(Sketcher.Constraint("Vertical", 4, 2, 9, 2))
sketch11.addConstraint(Sketcher.Constraint("Vertical", 2, 2, 11, 2))
sketch11.addConstraint(Sketcher.Constraint("Equal", 4, 6))
sketch11.addConstraint(Sketcher.Constraint("Radius", 1, Q("100 mm")))
sketch11.addConstraint(Sketcher.Constraint("DistanceX", 2, 2, 2, 1, Q("4 mm")))
sketch11.addConstraint(Sketcher.Constraint("Angle", 0, Q("144 deg")))
sketch11.addConstraint(Sketcher.Constraint("Angle", 6, Q("-108 deg")))
sketch11.addConstraint(Sketcher.Constraint("Distance", 0, Q("4 mm")))
pad11 = body11.newObject("PartDesign::Pad", "Pad010")
pad11.Profile = sketch11
pad11.Length = 1265
body12 = doc.addObject("PartDesign::Body", "Body011")

sketch12 = body12.newObject("Sketcher::SketchObject", "Sketch011")
sketch12.AttachmentSupport = (doc.getObject("XZ_Plane011"), [""])
sketch12.MapMode = "FlatFace"
sketch12.addGeometry(Part.ArcOfCircle(Part.Circle(V(0, 0, 0), V(0, 0, 1), 65), math.radians(-90), math.radians(0)), False)
sketch12.addGeometry(Part.LineSegment(V(65, 0, 0), V(75, 0, 0)), False)
sketch12.addGeometry(Part.ArcOfCircle(Part.Circle(V(0, 0, 0), V(0, 0, 1), 75), math.radians(-90), math.radians(0)), False)
sketch12.addGeometry(Part.LineSegment(V(0, -75, 0), V(0, -65, 0)), False)
sketch12.addConstraint(Sketcher.Constraint("Coincident", 0, 2, 1, 1))
sketch12.addConstraint(Sketcher.Constraint("Coincident", 1, 2, 2, 2))
sketch12.addConstraint(Sketcher.Constraint("Coincident", 2, 1, 3, 1))
sketch12.addConstraint(Sketcher.Constraint("Coincident", 3, 2, 0, 1))
sketch12.addConstraint(Sketcher.Constraint("Horizontal", 1))
sketch12.addConstraint(Sketcher.Constraint("Vertical", 3))
sketch12.addConstraint(Sketcher.Constraint("Coincident", 0, 3, -1, 1))
sketch12.addConstraint(Sketcher.Constraint("Coincident", 2, 3, -1, 1))
sketch12.addConstraint(Sketcher.Constraint("PointOnObject", 0, 2, -1))
sketch12.addConstraint(Sketcher.Constraint("PointOnObject", 2, 1, -2))
sketch12.addConstraint(Sketcher.Constraint("Radius", 0, Q("65 mm")))
sketch12.addConstraint(Sketcher.Constraint("Radius", 2, Q("75 mm")))
revolution = body12.newObject("PartDesign::Revolution", "Revolution")
revolution.Profile = sketch12
revolution.ReferenceAxis = (sketch12, ["V_Axis"])
revolution.Angle = 360
body13 = doc.addObject("PartDesign::Body", "Body012")
doc.recompute()

mirroring = doc.addObject("Part::Mirroring", "Mirroring")
mirroring.Source = body12
mirroring.Base = V(0, 0, 632.5)
mirroring.Normal = V(0, 0, -1)
body13.BaseFeature = mirroring
doc.recompute()
mirroring.Visibility = False

doc.recompute()
